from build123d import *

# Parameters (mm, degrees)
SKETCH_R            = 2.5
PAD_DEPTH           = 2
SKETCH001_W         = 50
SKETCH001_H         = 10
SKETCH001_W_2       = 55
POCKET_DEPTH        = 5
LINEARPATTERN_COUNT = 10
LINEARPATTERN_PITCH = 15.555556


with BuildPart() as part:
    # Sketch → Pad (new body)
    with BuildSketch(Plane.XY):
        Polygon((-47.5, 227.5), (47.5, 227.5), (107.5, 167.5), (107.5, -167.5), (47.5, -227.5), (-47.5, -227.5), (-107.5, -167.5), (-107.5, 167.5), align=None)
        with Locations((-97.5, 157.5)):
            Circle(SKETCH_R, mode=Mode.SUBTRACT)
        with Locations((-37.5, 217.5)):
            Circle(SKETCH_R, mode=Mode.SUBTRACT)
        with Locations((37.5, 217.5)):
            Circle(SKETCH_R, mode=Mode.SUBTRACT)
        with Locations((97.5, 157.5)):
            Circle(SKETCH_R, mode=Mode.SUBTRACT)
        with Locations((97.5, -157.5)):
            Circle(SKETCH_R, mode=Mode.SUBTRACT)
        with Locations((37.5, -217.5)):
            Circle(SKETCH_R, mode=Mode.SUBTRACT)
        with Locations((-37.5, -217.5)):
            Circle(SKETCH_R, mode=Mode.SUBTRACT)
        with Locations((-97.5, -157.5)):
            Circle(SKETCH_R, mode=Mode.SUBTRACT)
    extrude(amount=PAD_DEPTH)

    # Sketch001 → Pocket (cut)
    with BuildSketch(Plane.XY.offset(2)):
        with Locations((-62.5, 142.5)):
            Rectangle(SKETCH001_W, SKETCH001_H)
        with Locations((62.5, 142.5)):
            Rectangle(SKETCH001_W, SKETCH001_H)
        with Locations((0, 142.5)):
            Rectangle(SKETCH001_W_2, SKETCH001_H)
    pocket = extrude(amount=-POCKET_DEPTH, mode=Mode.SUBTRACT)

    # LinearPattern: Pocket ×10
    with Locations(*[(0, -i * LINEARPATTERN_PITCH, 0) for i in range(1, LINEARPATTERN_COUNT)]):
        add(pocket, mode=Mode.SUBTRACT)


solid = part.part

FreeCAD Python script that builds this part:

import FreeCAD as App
import Part
import Sketcher
from FreeCAD import Vector
Q = App.Units.Quantity

doc = App.newDocument("Part")
body = doc.addObject("PartDesign::Body", "Body")

sketch1 = doc.addObject("Sketcher::SketchObject", "Sketch")
body.addObject(sketch1)
sketch1.AttachmentSupport = (doc.XY_Plane, [""])
sketch1.MapMode = "FlatFace"
sketch1.addGeometry([
    Part.LineSegment(Vector(47.5, 227.5, 0), Vector(-47.5, 227.5, 0)),
    Part.LineSegment(Vector(-47.5, 227.5, 0), Vector(-107.5, 167.5, 0)),
    Part.LineSegment(Vector(-107.5, 167.5, 0), Vector(-107.5, -167.5, 0)),
    Part.LineSegment(Vector(-107.5, -167.5, 0), Vector(-47.5, -227.5, 0)),
    Part.LineSegment(Vector(-47.5, -227.5, 0), Vector(47.5, -227.5, 0)),
    Part.LineSegment(Vector(47.5, -227.5, 0), Vector(107.5, -167.5, 0)),
    Part.LineSegment(Vector(107.5, -167.5, 0), Vector(107.5, 167.5, 0)),
    Part.LineSegment(Vector(107.5, 167.5, 0), Vector(47.5, 227.5, 0)),
    Part.Circle(Vector(97.5, -157.5, 0), Vector(0, 0, 1), 2.5),
    Part.Circle(Vector(37.5, -217.5, 0), Vector(0, 0, 1), 2.5),
    Part.Circle(Vector(-37.5, -217.5, 0), Vector(0, 0, 1), 2.5),
    Part.Circle(Vector(-97.5, -157.5, 0), Vector(0, 0, 1), 2.5),
    Part.Circle(Vector(97.5, 157.5, 0), Vector(0, 0, 1), 2.5),
    Part.Circle(Vector(37.5, 217.5, 0), Vector(0, 0, 1), 2.5),
    Part.Circle(Vector(-37.5, 217.5, 0), Vector(0, 0, 1), 2.5),
    Part.Circle(Vector(-97.5, 157.5, 0), Vector(0, 0, 1), 2.5),
], False)
sketch1.addConstraint([
    Sketcher.Constraint("Coincident", 0, 2, 1, 1),
    Sketcher.Constraint("Coincident", 1, 2, 2, 1),
    Sketcher.Constraint("Coincident", 2, 2, 3, 1),
    Sketcher.Constraint("Coincident", 3, 2, 4, 1),
    Sketcher.Constraint("Coincident", 4, 2, 5, 1),
    Sketcher.Constraint("Coincident", 5, 2, 6, 1),
    Sketcher.Constraint("Coincident", 6, 2, 7, 1),
    Sketcher.Constraint("Coincident", 7, 2, 0, 1),
    Sketcher.Constraint("Horizontal", 0),
    Sketcher.Constraint("Vertical", 2),
    Sketcher.Constraint("Horizontal", 4),
    Sketcher.Constraint("Vertical", 6),
    Sketcher.Constraint("Equal", 8, 9),
    Sketcher.Constraint("Equal", 9, 10),
    Sketcher.Constraint("Equal", 10, 11),
    Sketcher.Constraint("Equal", 11, 12),
    Sketcher.Constraint("Equal", 12, 13),
    Sketcher.Constraint("Equal", 13, 14),
    Sketcher.Constraint("Equal", 14, 15),
    Sketcher.Constraint("Symmetric", 11, 3, 12, 3, -1, 1),
    Sketcher.Constraint("Symmetric", 10, 3, 13, 3, -1, 1),
    Sketcher.Constraint("Symmetric", 9, 3, 14, 3, -1, 1),
    Sketcher.Constraint("Symmetric", 8, 3, 15, 3, -1, 1),
    Sketcher.Constraint("Symmetric", 0, 2, 4, 2, -1, 1),
    Sketcher.Constraint("Symmetric", 1, 2, 5, 2, -1, 1),
    Sketcher.Constraint("Symmetric", 9, 3, 10, 3, -2),
    Sketcher.Constraint("Symmetric", 8, 3, 11, 3, -2),
    Sketcher.Constraint("Perpendicular", 1, 3),
    Sketcher.Constraint("Perpendicular", 5, 7),
    Sketcher.Constraint("Horizontal", 2, 2, 5, 2),
    Sketcher.Constraint("Horizontal", 1, 2, 6, 2),
    Sketcher.Constraint("Vertical", 0, 2, 3, 2),
    Sketcher.Constraint("Diameter", 8, Q("5 mm")),
    Sketcher.Constraint("DistanceX", 0, 2, 0, 1, Q("95 mm")),
    Sketcher.Constraint("DistanceY", 2, 2, 2, 1, Q("335 mm")),
    Sketcher.Constraint("DistanceX", 9, 3, 8, 3, Q("60 mm")),
    Sketcher.Constraint("DistanceY", 9, 3, 8, 3, Q("60 mm")),
    Sketcher.Constraint("DistanceX", 10, 3, 9, 3, Q("75 mm")),
    Sketcher.Constraint("DistanceY", 8, 3, 12, 3, Q("315 mm")),
    Sketcher.Constraint("DistanceY", 14, 3, 0, 2, Q("10 mm")),
])
pad1 = doc.addObject("PartDesign::Pad", "Pad")
body.addObject(pad1)
pad1.Profile = sketch1
pad1.Length = 2

sketch2 = doc.addObject("Sketcher::SketchObject", "Sketch001")
body.addObject(sketch2)
sketch2.AttachmentSupport = (doc.XY_Plane, [""])
sketch2.MapMode = "FlatFace"
sketch2.AttachmentOffset = App.Placement(Vector(0, 0, 2), App.Rotation())
sketch2.addGeometry([
    Part.LineSegment(Vector(-88, 148, 0), Vector(-88, 138, 0)),
    Part.LineSegment(Vector(-88, 138, 0), Vector(-38, 138, 0)),
    Part.LineSegment(Vector(-38, 138, 0), Vector(-38, 148, 0)),
    Part.LineSegment(Vector(-38, 148, 0), Vector(-88, 148, 0)),
    Part.LineSegment(Vector(38, 148, 0), Vector(38, 138, 0)),
    Part.LineSegment(Vector(38, 138, 0), Vector(88, 138, 0)),
    Part.LineSegment(Vector(88, 138, 0), Vector(88, 148, 0)),
    Part.LineSegment(Vector(88, 148, 0), Vector(38, 148, 0)),
    Part.LineSegment(Vector(-28, 148, 0), Vector(-28, 138, 0)),
    Part.LineSegment(Vector(-28, 138, 0), Vector(28, 138, 0)),
    Part.LineSegment(Vector(28, 138, 0), Vector(28, 148, 0)),
    Part.LineSegment(Vector(28, 148, 0), Vector(-28, 148, 0)),
], False)
sketch2.addConstraint([
    Sketcher.Constraint("Coincident", 0, 2, 1, 1),
    Sketcher.Constraint("Coincident", 1, 2, 2, 1),
    Sketcher.Constraint("Coincident", 2, 2, 3, 1),
    Sketcher.Constraint("Coincident", 3, 2, 0, 1),
    Sketcher.Constraint("Coincident", 4, 2, 5, 1),
    Sketcher.Constraint("Coincident", 5, 2, 6, 1),
    Sketcher.Constraint("Coincident", 6, 2, 7, 1),
    Sketcher.Constraint("Coincident", 7, 2, 4, 1),
    Sketcher.Constraint("Coincident", 8, 2, 9, 1),
    Sketcher.Constraint("Coincident", 9, 2, 10, 1),
    Sketcher.Constraint("Coincident", 10, 2, 11, 1),
    Sketcher.Constraint("Coincident", 11, 2, 8, 1),
    Sketcher.Constraint("Vertical", 0),
    Sketcher.Constraint("Horizontal", 1),
    Sketcher.Constraint("Vertical", 2),
    Sketcher.Constraint("Horizontal", 3),
    Sketcher.Constraint("Vertical", 4),
    Sketcher.Constraint("Horizontal", 5),
    Sketcher.Constraint("Vertical", 6),
    Sketcher.Constraint("Horizontal", 7),
    Sketcher.Constraint("Vertical", 8),
    Sketcher.Constraint("Horizontal", 9),
    Sketcher.Constraint("Vertical", 10),
    Sketcher.Constraint("Horizontal", 11),
    Sketcher.Constraint("Symmetric", 1, 2, 4, 2, -2),
    Sketcher.Constraint("Symmetric", 3, 2, 6, 2, -2),
    Sketcher.Constraint("Horizontal", 5, 2, 8, 2),
    Sketcher.Constraint("Horizontal", 7, 2, 10, 2),
    Sketcher.Constraint("DistanceX", 1, 1, 1, 2, Q("50 mm")),
    Sketcher.Constraint("DistanceX", 9, 1, 9, 2, Q("55 mm")),
    Sketcher.Constraint("DistanceY", 0, 2, 0, 1, Q("10 mm")),
    Sketcher.Constraint("DistanceX", 1, 2, 4, 2, Q("75 mm")),
    Sketcher.Constraint("DistanceX", 1, 2, 8, 2, Q("10 mm")),
    Sketcher.Constraint("DistanceY", -1, 1, 0, 2, Q("137.5 mm")),
])
pocket1 = doc.addObject("PartDesign::Pocket", "Pocket")
body.addObject(pocket1)
pocket1.Profile = sketch2
pocket1.Length = 5
doc.recompute()

linearpattern = doc.addObject("PartDesign::LinearPattern", "LinearPattern")
body.addObject(linearpattern)
linearpattern.Originals = [pocket1]
linearpattern.Direction = (doc.Y_Axis, [""])
linearpattern.Mode = "offset"
linearpattern.Offset = 15.555556
linearpattern.Occurrences = 10
linearpattern.Reversed = True
body.Tip = linearpattern

doc.recompute()
